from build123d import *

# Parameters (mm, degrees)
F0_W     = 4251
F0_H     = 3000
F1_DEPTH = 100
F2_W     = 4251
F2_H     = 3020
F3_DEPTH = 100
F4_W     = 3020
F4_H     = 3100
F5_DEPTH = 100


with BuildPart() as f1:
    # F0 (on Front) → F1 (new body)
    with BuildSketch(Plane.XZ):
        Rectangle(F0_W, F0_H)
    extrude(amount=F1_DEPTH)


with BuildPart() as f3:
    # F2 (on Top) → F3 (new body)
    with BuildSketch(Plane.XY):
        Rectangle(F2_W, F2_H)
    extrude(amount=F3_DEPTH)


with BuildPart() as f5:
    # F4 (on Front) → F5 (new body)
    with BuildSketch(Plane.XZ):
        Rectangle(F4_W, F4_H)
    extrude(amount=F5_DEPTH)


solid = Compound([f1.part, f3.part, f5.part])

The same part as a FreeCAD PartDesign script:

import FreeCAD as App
import Part
import Sketcher


def add_polygon(sketch, points):
    """Adds a closed chain of lines whose ends are joined by coincident constraints."""
    first, n = sketch.GeometryCount, len(points)
    for a, b in zip(points, points[1:] + points[:1]):
        sketch.addGeometry(Part.LineSegment(App.Vector(*a, 0), App.Vector(*b, 0)), False)
    for i in range(n):
        sketch.addConstraint(Sketcher.Constraint("Coincident", first + i, 2, first + (i + 1) % n, 1))

doc = App.newDocument("Part")
body = doc.addObject("PartDesign::Body", "Body")

# Sketch on XZ plane
sketch1 = doc.addObject("Sketcher::SketchObject", "Sketch")
body.addObject(sketch1)
sketch1.AttachmentSupport = (doc.XZ_Plane, [""])
sketch1.MapMode = "FlatFace"
add_polygon(sketch1, [(-2125.5, 1500), (-2125.5, -1500), (2125.5, -1500), (2125.5, 1500)])  # lines 0-3
sketch1.addConstraint([
    Sketcher.Constraint("Vertical", 0),
    Sketcher.Constraint("Horizontal", 1),
    Sketcher.Constraint("Vertical", 2),
    Sketcher.Constraint("Horizontal", 3),
    Sketcher.Constraint("Symmetric", 0, 2, 2, 2, -1, 1),
    Sketcher.Constraint("DistanceX", 1, 1, 1, 2, 4251.0),
    Sketcher.Constraint("DistanceY", 0, 2, 0, 1, 3000.0),
])
pad1 = doc.addObject("PartDesign::Pad", "Pad")
body.addObject(pad1)
pad1.Profile = sketch1
pad1.Length = 100
body2 = doc.addObject("PartDesign::Body", "Body001")

# Sketch on XY plane
sketch2 = doc.addObject("Sketcher::SketchObject", "Sketch001")
body2.addObject(sketch2)
sketch2.AttachmentSupport = (doc.getObject("XY_Plane001"), [""])
sketch2.MapMode = "FlatFace"
add_polygon(sketch2, [(-2125.5, 1510), (-2125.5, -1510), (2125.5, -1510), (2125.5, 1510)])  # lines 0-3
sketch2.addConstraint([
    Sketcher.Constraint("Vertical", 0),
    Sketcher.Constraint("Horizontal", 1),
    Sketcher.Constraint("Vertical", 2),
    Sketcher.Constraint("Horizontal", 3),
    Sketcher.Constraint("Symmetric", 0, 2, 2, 2, -1, 1),
    Sketcher.Constraint("DistanceX", 1, 1, 1, 2, 4251.0),
    Sketcher.Constraint("DistanceY", 0, 2, 0, 1, 3020.0),
])
pad2 = doc.addObject("PartDesign::Pad", "Pad001")
body2.addObject(pad2)
pad2.Profile = sketch2
pad2.Length = 100
body3 = doc.addObject("PartDesign::Body", "Body002")

# Sketch on XZ plane
sketch3 = doc.addObject("Sketcher::SketchObject", "Sketch002")
body3.addObject(sketch3)
sketch3.AttachmentSupport = (doc.getObject("XZ_Plane002"), [""])
sketch3.MapMode = "FlatFace"
add_polygon(sketch3, [(-1510, 1550), (-1510, -1550), (1510, -1550), (1510, 1550)])  # lines 0-3
sketch3.addConstraint([
    Sketcher.Constraint("Vertical", 0),
    Sketcher.Constraint("Horizontal", 1),
    Sketcher.Constraint("Vertical", 2),
    Sketcher.Constraint("Horizontal", 3),
    Sketcher.Constraint("Symmetric", 0, 2, 2, 2, -1, 1),
    Sketcher.Constraint("DistanceX", 1, 1, 1, 2, 3020.0),
    Sketcher.Constraint("DistanceY", 0, 2, 0, 1, 3100.0),
])
pad3 = doc.addObject("PartDesign::Pad", "Pad002")
body3.addObject(pad3)
pad3.Profile = sketch3
pad3.Length = 100

doc.recompute()
